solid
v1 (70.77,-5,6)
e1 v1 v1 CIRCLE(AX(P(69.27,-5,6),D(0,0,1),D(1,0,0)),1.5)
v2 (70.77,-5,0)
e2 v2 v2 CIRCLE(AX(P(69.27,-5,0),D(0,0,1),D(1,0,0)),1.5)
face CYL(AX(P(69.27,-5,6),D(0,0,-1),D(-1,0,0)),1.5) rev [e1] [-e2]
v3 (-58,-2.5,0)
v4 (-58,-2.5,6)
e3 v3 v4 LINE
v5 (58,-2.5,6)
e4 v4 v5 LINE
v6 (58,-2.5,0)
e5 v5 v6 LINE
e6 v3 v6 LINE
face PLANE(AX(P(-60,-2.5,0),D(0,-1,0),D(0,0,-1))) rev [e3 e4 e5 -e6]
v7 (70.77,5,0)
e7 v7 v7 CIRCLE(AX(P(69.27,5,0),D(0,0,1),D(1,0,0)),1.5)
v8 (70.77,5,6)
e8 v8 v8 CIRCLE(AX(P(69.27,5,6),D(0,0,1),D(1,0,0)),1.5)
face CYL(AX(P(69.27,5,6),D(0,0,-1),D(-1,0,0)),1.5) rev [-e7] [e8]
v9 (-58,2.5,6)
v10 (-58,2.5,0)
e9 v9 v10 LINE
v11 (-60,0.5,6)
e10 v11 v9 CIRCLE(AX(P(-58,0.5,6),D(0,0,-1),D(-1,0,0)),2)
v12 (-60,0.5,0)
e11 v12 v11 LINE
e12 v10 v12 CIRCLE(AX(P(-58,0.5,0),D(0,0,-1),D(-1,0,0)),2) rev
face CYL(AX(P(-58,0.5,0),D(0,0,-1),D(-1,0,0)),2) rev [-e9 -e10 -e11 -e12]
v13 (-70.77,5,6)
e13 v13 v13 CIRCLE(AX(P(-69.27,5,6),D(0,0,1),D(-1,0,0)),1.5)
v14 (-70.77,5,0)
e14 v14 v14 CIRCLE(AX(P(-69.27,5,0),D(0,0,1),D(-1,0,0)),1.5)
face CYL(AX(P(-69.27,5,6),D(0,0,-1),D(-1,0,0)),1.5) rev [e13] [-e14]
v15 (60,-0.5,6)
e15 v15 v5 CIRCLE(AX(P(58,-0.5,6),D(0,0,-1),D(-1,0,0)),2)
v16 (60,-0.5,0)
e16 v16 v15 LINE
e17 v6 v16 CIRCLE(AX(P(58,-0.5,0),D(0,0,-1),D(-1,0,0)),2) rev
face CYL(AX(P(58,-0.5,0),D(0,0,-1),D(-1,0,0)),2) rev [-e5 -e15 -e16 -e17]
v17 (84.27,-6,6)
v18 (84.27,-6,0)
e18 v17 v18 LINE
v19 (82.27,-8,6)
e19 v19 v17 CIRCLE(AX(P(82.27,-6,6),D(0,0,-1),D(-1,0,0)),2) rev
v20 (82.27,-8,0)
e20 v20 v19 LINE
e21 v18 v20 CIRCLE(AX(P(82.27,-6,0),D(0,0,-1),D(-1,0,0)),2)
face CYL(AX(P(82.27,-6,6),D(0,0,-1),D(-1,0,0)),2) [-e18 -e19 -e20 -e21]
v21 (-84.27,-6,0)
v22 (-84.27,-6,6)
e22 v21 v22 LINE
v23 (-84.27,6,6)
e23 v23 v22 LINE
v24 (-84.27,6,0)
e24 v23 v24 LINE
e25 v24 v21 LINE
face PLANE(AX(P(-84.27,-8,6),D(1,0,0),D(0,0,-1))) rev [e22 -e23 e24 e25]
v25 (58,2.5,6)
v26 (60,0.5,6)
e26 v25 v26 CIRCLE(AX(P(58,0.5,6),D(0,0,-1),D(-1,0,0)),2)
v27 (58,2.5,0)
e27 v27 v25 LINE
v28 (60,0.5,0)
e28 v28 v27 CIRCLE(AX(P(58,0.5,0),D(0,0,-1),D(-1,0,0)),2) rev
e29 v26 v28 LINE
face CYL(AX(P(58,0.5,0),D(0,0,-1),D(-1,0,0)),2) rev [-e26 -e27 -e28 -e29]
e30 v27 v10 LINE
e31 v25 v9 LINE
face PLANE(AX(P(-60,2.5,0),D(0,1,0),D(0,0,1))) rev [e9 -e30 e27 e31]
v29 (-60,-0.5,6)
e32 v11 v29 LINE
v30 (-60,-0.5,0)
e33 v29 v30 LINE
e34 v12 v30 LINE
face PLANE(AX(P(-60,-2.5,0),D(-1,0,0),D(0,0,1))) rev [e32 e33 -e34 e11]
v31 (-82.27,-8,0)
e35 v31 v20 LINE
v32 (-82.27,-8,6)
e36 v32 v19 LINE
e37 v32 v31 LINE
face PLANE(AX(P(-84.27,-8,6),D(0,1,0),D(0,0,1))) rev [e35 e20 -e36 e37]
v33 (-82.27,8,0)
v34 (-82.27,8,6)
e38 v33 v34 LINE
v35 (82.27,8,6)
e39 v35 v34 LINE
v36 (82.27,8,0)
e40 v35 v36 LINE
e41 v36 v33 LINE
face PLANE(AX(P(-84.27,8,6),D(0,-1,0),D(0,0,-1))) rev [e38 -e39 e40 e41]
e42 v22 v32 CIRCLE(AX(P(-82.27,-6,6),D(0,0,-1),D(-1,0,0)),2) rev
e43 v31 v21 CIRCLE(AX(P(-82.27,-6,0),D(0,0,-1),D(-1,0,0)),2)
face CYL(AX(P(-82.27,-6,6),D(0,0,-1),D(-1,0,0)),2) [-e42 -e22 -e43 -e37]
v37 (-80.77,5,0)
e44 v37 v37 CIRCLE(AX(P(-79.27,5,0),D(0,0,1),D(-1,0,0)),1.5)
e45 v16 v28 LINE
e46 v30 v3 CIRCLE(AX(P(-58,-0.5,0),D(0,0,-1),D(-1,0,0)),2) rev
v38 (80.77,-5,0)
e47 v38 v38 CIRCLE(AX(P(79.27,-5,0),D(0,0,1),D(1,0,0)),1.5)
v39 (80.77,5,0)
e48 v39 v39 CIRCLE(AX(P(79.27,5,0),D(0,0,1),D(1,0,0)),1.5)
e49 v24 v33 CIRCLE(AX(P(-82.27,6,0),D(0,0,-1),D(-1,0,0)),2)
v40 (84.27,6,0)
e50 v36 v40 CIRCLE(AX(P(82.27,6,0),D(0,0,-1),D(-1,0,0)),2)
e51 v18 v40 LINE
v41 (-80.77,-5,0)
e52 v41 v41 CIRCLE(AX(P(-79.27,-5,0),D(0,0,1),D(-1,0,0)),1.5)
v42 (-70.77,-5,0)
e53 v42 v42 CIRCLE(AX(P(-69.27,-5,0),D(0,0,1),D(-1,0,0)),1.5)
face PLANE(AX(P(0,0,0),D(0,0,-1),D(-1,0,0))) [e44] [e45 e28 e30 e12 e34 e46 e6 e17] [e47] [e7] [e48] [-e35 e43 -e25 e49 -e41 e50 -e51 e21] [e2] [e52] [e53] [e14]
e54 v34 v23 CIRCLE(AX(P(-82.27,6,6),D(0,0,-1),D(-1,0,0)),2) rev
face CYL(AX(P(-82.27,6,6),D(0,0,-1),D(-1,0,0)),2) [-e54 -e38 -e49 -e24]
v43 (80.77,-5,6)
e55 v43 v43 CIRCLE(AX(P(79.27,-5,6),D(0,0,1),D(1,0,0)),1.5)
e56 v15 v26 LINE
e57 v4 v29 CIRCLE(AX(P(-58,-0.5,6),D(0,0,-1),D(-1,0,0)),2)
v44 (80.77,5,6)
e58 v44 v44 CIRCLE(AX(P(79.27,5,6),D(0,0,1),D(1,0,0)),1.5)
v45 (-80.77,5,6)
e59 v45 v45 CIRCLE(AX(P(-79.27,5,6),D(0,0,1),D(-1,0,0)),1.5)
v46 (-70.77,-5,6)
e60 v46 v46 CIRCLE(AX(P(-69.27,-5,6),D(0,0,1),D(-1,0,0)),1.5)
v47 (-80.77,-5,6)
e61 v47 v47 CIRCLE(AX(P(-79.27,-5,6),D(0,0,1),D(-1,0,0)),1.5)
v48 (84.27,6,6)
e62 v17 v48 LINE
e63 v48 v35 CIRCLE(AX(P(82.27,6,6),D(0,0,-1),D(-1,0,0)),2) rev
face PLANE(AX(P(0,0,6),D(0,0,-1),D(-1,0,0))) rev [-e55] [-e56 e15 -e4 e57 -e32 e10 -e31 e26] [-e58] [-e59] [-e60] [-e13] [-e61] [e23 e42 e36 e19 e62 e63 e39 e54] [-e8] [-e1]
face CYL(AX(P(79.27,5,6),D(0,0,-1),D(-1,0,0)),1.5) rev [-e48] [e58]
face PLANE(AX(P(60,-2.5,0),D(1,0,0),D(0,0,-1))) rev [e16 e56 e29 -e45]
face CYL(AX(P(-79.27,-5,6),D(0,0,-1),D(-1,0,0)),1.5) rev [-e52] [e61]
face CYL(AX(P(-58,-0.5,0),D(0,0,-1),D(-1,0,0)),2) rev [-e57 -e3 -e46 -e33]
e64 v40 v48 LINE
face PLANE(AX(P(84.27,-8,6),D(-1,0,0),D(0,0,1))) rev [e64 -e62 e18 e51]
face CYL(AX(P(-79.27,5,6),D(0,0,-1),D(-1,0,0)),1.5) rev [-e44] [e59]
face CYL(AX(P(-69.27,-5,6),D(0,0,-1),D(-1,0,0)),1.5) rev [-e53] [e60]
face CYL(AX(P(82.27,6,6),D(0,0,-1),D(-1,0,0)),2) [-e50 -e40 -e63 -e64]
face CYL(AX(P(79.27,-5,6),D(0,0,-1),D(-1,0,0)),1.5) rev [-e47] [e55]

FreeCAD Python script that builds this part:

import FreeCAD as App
import Part
import Sketcher
from FreeCAD import Vector
Q = App.Units.Quantity


def edges_at(feature, points):
    """Names of the edges that pass closest to the given points."""
    edges = feature.Shape.Edges
    near = lambda p: min(range(len(edges)), key=lambda i: edges[i].distToShape(Part.Vertex(*p))[0])
    return sorted({f"Edge{near(p) + 1}" for p in points})

doc = App.newDocument("Part")
body = doc.addObject("PartDesign::Body", "Body")

sketch1 = body.newObject("Sketcher::SketchObject", "Sketch")
sketch1.AttachmentSupport = (doc.getObject("XY_Plane"), [""])
sketch1.MapMode = "FlatFace"
sketch1.addGeometry([
    Part.LineSegment(Vector(-84.27, 8, 0), Vector(-84.27, -8, 0)),
    Part.LineSegment(Vector(-84.27, -8, 0), Vector(84.27, -8, 0)),
    Part.LineSegment(Vector(84.27, -8, 0), Vector(84.27, 8, 0)),
    Part.LineSegment(Vector(84.27, 8, 0), Vector(-84.27, 8, 0)),
    Part.Circle(Vector(-79.27, -5, 0), Vector(0, 0, 1), 1.5),
    Part.Circle(Vector(-69.27, -5, 0), Vector(0, 0, 1), 1.5),
    Part.Circle(Vector(69.27, -5, 0), Vector(0, 0, 1), 1.5),
    Part.Circle(Vector(79.27, -5, 0), Vector(0, 0, 1), 1.5),
    Part.Circle(Vector(-79.27, 5, 0), Vector(0, 0, 1), 1.5),
    Part.Circle(Vector(-69.27, 5, 0), Vector(0, 0, 1), 1.5),
    Part.Circle(Vector(69.27, 5, 0), Vector(0, 0, 1), 1.5),
    Part.Circle(Vector(79.27, 5, 0), Vector(0, 0, 1), 1.5),
], False)
sketch1.addConstraint([
    Sketcher.Constraint("Coincident", 0, 2, 1, 1),
    Sketcher.Constraint("Coincident", 1, 2, 2, 1),
    Sketcher.Constraint("Coincident", 2, 2, 3, 1),
    Sketcher.Constraint("Coincident", 3, 2, 0, 1),
    Sketcher.Constraint("Vertical", 0),
    Sketcher.Constraint("Horizontal", 1),
    Sketcher.Constraint("Vertical", 2),
    Sketcher.Constraint("Horizontal", 3),
    Sketcher.Constraint("Equal", 4, 5),
    Sketcher.Constraint("Equal", 5, 6),
    Sketcher.Constraint("Equal", 6, 7),
    Sketcher.Constraint("Equal", 7, 8),
    Sketcher.Constraint("Equal", 8, 9),
    Sketcher.Constraint("Equal", 9, 10),
    Sketcher.Constraint("Equal", 10, 11),
    Sketcher.Constraint("Symmetric", 7, 3, 8, 3, -1, 1),
    Sketcher.Constraint("Symmetric", 6, 3, 9, 3, -1, 1),
    Sketcher.Constraint("Symmetric", 5, 3, 10, 3, -1, 1),
    Sketcher.Constraint("Symmetric", 4, 3, 11, 3, -1, 1),
    Sketcher.Constraint("Symmetric", 0, 2, 2, 2, -1, 1),
    Sketcher.Constraint("Symmetric", 5, 3, 6, 3, -2),
    Sketcher.Constraint("Symmetric", 4, 3, 7, 3, -2),
    Sketcher.Constraint("Horizontal", 4, 3, 5, 3),
    Sketcher.Constraint("Diameter", 4, Q("3 mm")),
    Sketcher.Constraint("DistanceY", 0, 2, 0, 1, Q("16 mm")),
    Sketcher.Constraint("DistanceY", 4, 3, -1, 1, Q("5 mm")),
    Sketcher.Constraint("DistanceX", 4, 3, 5, 3, Q("10 mm")),
    Sketcher.Constraint("DistanceX", 0, 2, 4, 3, Q("5 mm")),
    Sketcher.Constraint("DistanceX", 1, 1, 1, 2, Q("168.54 mm")),
])
pad1 = body.newObject("PartDesign::Pad", "Pad")
pad1.Profile = sketch1
pad1.Length = 6
doc.recompute()

fillet = body.newObject("PartDesign::Fillet", "Fillet")
fillet.Base = (pad1, edges_at(pad1, [
    (84.27, -8, 3),
    (-84.27, -8, 3),
    (-84.27, 8, 3),
    (84.27, 8, 3),
]))
fillet.Radius = 2

sketch2 = body.newObject("Sketcher::SketchObject", "Sketch001")
sketch2.AttachmentSupport = (doc.getObject("XY_Plane"), [""])
sketch2.MapMode = "FlatFace"
sketch2.AttachmentOffset = App.Placement(Vector(0, 0, 6), App.Rotation())
sketch2.addGeometry([
    Part.LineSegment(Vector(-60, 2.5, 0), Vector(-60, -2.5, 0)),
    Part.LineSegment(Vector(-60, -2.5, 0), Vector(60, -2.5, 0)),
    Part.LineSegment(Vector(60, -2.5, 0), Vector(60, 2.5, 0)),
    Part.LineSegment(Vector(60, 2.5, 0), Vector(-60, 2.5, 0)),
], False)
sketch2.addConstraint([
    Sketcher.Constraint("Coincident", 0, 2, 1, 1),
    Sketcher.Constraint("Coincident", 1, 2, 2, 1),
    Sketcher.Constraint("Coincident", 2, 2, 3, 1),
    Sketcher.Constraint("Coincident", 3, 2, 0, 1),
    Sketcher.Constraint("Vertical", 0),
    Sketcher.Constraint("Horizontal", 1),
    Sketcher.Constraint("Vertical", 2),
    Sketcher.Constraint("Horizontal", 3),
    Sketcher.Constraint("Symmetric", 0, 2, 2, 2, -1, 1),
    Sketcher.Constraint("DistanceX", 1, 1, 1, 2, Q("120 mm")),
    Sketcher.Constraint("DistanceY", 0, 2, 0, 1, Q("5 mm")),
])
pocket1 = body.newObject("PartDesign::Pocket", "Pocket")
pocket1.Profile = sketch2
pocket1.Length = 6
doc.recompute()

fillet2 = body.newObject("PartDesign::Fillet", "Fillet001")
fillet2.Base = (pocket1, edges_at(pocket1, [
    (60, 2.5, 3),
    (60, -2.5, 3),
    (-60, -2.5, 3),
    (-60, 2.5, 3),
]))
fillet2.Radius = 2

doc.recompute()
